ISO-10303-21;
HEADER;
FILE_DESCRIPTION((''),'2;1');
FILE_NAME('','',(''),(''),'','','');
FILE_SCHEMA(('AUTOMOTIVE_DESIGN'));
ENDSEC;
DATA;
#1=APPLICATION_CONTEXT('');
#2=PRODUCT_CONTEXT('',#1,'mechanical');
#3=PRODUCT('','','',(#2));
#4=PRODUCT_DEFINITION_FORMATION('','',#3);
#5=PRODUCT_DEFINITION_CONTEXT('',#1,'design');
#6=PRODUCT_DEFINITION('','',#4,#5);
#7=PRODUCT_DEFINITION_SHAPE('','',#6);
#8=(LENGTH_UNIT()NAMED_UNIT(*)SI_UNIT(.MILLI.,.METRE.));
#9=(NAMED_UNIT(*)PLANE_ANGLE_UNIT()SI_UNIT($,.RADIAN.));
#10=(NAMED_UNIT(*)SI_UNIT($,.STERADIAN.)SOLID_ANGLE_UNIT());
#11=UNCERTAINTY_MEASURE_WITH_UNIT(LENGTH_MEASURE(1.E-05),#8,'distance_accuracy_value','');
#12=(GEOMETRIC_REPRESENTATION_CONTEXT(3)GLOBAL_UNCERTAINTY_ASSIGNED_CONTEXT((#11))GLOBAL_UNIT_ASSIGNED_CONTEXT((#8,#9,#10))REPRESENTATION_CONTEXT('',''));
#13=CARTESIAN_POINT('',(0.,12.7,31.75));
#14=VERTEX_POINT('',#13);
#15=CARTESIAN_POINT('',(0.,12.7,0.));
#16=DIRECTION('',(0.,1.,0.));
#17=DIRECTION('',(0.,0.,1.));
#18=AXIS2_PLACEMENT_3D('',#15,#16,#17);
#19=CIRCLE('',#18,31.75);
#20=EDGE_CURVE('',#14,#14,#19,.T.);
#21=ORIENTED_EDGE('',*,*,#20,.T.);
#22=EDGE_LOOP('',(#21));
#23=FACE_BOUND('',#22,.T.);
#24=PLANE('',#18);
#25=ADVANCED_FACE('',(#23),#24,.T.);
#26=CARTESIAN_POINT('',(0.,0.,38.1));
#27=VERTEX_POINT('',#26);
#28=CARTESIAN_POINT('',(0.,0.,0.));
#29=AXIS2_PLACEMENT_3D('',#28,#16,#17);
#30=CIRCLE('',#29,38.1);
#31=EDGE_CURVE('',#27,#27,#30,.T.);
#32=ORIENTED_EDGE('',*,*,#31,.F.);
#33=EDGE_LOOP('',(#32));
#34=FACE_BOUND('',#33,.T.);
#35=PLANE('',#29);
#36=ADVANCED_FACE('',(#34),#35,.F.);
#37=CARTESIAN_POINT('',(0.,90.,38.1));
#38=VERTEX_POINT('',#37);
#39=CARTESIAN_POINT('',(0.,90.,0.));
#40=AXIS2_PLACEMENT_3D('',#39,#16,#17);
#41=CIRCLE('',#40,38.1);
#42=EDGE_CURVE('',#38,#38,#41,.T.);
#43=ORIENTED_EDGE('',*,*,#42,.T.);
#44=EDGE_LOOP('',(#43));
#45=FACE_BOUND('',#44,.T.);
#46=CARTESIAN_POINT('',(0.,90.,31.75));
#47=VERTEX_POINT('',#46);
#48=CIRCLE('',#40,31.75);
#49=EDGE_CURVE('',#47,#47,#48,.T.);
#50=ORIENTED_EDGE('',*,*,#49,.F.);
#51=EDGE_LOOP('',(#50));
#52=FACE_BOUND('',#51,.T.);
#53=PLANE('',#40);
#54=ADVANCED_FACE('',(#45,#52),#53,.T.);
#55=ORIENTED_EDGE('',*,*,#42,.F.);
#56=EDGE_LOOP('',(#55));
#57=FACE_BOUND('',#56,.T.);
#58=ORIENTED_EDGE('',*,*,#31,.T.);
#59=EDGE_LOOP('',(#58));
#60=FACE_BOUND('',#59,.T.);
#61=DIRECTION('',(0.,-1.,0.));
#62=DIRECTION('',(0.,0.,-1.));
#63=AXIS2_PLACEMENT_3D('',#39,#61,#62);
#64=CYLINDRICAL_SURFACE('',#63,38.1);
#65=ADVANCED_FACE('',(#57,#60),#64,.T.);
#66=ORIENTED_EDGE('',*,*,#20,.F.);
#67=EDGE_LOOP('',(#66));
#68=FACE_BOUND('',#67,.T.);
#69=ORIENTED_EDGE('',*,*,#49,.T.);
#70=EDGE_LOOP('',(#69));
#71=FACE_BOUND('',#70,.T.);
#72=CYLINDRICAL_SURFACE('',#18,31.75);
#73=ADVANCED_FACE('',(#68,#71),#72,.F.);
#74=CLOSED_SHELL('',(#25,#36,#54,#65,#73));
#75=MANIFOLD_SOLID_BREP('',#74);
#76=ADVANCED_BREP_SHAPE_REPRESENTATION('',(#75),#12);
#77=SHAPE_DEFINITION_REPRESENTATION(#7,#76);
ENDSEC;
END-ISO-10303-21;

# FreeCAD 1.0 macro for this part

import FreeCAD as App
import Part
import Sketcher

V = App.Vector
Q = App.Units.Quantity

doc = App.newDocument("Part")
body = doc.addObject("PartDesign::Body", "Body")

# Sketch on XZ plane
sketch1 = doc.addObject("Sketcher::SketchObject", "Sketch")
body.addObject(sketch1)
sketch1.AttachmentSupport = (doc.XZ_Plane, [""])
sketch1.MapMode = "FlatFace"
sketch1.addGeometry(Part.Circle(V(0, 0, 0), V(0, 0, 1), 38), False)
sketch1.addConstraint([
    Sketcher.Constraint("Coincident", 0, 3, -1, 1),
    Sketcher.Constraint("Diameter", 0, Q("76.2 mm")),
])
pad1 = doc.addObject("PartDesign::Pad", "Pad")
body.addObject(pad1)
pad1.Profile = sketch1
pad1.Length = 90
pad1.Reversed = True

# Sketch on XZ plane
sketch2 = doc.addObject("Sketcher::SketchObject", "Sketch001")
body.addObject(sketch2)
sketch2.AttachmentSupport = (doc.XZ_Plane, [""])
sketch2.MapMode = "FlatFace"
sketch2.AttachmentOffset = App.Placement(V(0, 0, -90), App.Rotation())
sketch2.addGeometry(Part.Circle(V(0, 0, 0), V(0, 0, 1), 32), False)
sketch2.addConstraint([
    Sketcher.Constraint("Coincident", 0, 3, -1, 1),
    Sketcher.Constraint("Diameter", 0, Q("63.5 mm")),
])
pocket1 = doc.addObject("PartDesign::Pocket", "Pocket")
body.addObject(pocket1)
pocket1.Profile = sketch2
pocket1.Length = 77.3
pocket1.Reversed = True

doc.recompute()
